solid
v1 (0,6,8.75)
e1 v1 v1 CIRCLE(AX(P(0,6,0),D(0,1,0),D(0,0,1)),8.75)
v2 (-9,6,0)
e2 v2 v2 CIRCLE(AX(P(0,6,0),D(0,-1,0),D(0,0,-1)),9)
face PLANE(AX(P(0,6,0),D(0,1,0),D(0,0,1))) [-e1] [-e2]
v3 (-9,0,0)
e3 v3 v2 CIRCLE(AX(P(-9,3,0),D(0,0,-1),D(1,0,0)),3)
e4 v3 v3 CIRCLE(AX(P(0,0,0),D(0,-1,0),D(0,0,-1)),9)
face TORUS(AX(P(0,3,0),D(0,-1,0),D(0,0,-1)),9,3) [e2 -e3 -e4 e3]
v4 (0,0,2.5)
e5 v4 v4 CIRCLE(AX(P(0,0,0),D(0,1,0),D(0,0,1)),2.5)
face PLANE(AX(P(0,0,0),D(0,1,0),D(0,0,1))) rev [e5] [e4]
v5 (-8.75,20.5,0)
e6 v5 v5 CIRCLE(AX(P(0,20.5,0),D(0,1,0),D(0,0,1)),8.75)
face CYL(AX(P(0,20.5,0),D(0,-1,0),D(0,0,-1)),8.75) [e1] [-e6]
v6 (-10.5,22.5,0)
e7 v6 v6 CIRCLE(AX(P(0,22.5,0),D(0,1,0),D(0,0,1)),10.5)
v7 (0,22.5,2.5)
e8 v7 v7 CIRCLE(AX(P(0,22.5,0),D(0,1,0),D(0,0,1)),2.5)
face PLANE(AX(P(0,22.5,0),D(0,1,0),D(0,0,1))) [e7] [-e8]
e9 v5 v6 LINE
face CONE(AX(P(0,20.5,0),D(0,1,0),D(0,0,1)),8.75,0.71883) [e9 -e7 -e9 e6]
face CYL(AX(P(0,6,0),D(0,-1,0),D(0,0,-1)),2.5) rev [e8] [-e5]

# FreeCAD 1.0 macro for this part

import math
import FreeCAD as App
import Part
import Sketcher
from FreeCAD import Vector
Q = App.Units.Quantity

doc = App.newDocument("Part")
body = doc.addObject("PartDesign::Body", "Body")

sketch1 = body.newObject("Sketcher::SketchObject", "Sketch")
sketch1.AttachmentSupport = (doc.getObject("XZ_Plane"), [""])
sketch1.MapMode = "FlatFace"
sketch1.addGeometry([
    Part.Circle(Vector(0, 0, 0), Vector(0, 0, 1), 12),
    Part.Circle(Vector(0, 0, 0), Vector(0, 0, 1), 2.5),
], False)
sketch1.addConstraint([
    Sketcher.Constraint("Coincident", 0, 3, -1, 1),
    Sketcher.Constraint("Coincident", 1, 3, -1, 1),
    Sketcher.Constraint("Diameter", 0, Q("24 mm")),
    Sketcher.Constraint("Diameter", 1, Q("5 mm")),
])
pad1 = body.newObject("PartDesign::Pad", "Pad")
pad1.Profile = sketch1
pad1.Length = 6
pad1.Reversed = True

sketch2 = body.newObject("Sketcher::SketchObject", "Sketch001")
sketch2.AttachmentSupport = (doc.getObject("XZ_Plane"), [""])
sketch2.MapMode = "FlatFace"
sketch2.AttachmentOffset = App.Placement(Vector(0, 0, -6), App.Rotation())
sketch2.addGeometry([
    Part.Circle(Vector(0, 0, 0), Vector(0, 0, 1), 8.75),
    Part.Circle(Vector(0, 0, 0), Vector(0, 0, 1), 2.5),
], False)
sketch2.addConstraint([
    Sketcher.Constraint("Coincident", 0, 3, -1, 1),
    Sketcher.Constraint("Coincident", 1, 3, -1, 1),
    Sketcher.Constraint("Diameter", 1, Q("5 mm")),
    Sketcher.Constraint("Diameter", 0, Q("17.5 mm")),
])
pad2 = body.newObject("PartDesign::Pad", "Pad001")
pad2.Profile = sketch2
pad2.Length = 14.5
pad2.Reversed = True

sketch3 = body.newObject("Sketcher::SketchObject", "Sketch002")
sketch3.AttachmentSupport = (doc.getObject("XZ_Plane"), [""])
sketch3.MapMode = "FlatFace"
sketch3.AttachmentOffset = App.Placement(Vector(0, 0, -20.5), App.Rotation())
sketch3.addGeometry([
    Part.Circle(Vector(0, 0, 0), Vector(0, 0, 1), 10.5),
    Part.Circle(Vector(0, 0, 0), Vector(0, 0, 1), 2.5),
], False)
sketch3.addConstraint([
    Sketcher.Constraint("Coincident", 0, 3, -1, 1),
    Sketcher.Constraint("Coincident", 1, 3, -1, 1),
    Sketcher.Constraint("Diameter", 0, Q("21 mm")),
    Sketcher.Constraint("Diameter", 1, Q("5 mm")),
])
pad3 = body.newObject("PartDesign::Pad", "Pad002")
pad3.Profile = sketch3
pad3.Length = 2
pad3.Reversed = True

sketch4 = body.newObject("Sketcher::SketchObject", "Sketch003")
sketch4.AttachmentSupport = (doc.getObject("XY_Plane"), [""])
sketch4.MapMode = "FlatFace"
sketch4.addGeometry([
    Part.LineSegment(Vector(-8.75, 20.5, 0), Vector(-10.5, 22.5, 0)),
    Part.LineSegment(Vector(-10.5, 22.5, 0), Vector(-10.5, 20.5, 0)),
    Part.LineSegment(Vector(-10.5, 20.5, 0), Vector(-8.75, 20.5, 0)),
], False)
sketch4.addConstraint([
    Sketcher.Constraint("Coincident", 0, 2, 1, 1),
    Sketcher.Constraint("Coincident", 1, 2, 2, 1),
    Sketcher.Constraint("Coincident", 2, 2, 0, 1),
    Sketcher.Constraint("Vertical", 1),
    Sketcher.Constraint("Horizontal", 2),
    Sketcher.Constraint("DistanceY", 1, 2, 1, 1, Q("2 mm")),
    Sketcher.Constraint("DistanceX", 2, 1, 2, 2, Q("1.75 mm")),
    Sketcher.Constraint("DistanceX", 0, 2, -1, 1, Q("10.5 mm")),
    Sketcher.Constraint("DistanceY", -1, 1, 0, 2, Q("22.5 mm")),
])

sketch5 = body.newObject("Sketcher::SketchObject", "Sketch004")
sketch5.AttachmentSupport = (doc.getObject("XZ_Plane"), [""])
sketch5.MapMode = "FlatFace"
sketch5.AttachmentOffset = App.Placement(Vector(0, 0, -20.5), App.Rotation())
sketch5.addGeometry(Part.Circle(Vector(0, 0, 0), Vector(0, 0, 1), 8.75), False)
sketch5.addConstraint([
    Sketcher.Constraint("Coincident", 0, 3, -1, 1),
    Sketcher.Constraint("Diameter", 0, Q("17.5 mm")),
])
doc.recompute()

subtractivepipe = body.newObject("PartDesign::SubtractivePipe", "SubtractivePipe")
subtractivepipe.Profile = sketch4
subtractivepipe.Spine = (sketch5, ["Edge1"])

sketch6 = body.newObject("Sketcher::SketchObject", "Sketch005")
sketch6.AttachmentSupport = (doc.getObject("XY_Plane"), [""])
sketch6.MapMode = "FlatFace"
sketch6.addGeometry([
    Part.LineSegment(Vector(-12, 6, 0), Vector(-12, 3, 0)),
    Part.ArcOfCircle(Part.Circle(Vector(-9, 3, 0), Vector(0, 0, 1), 3), math.radians(90), math.radians(180)),
    Part.LineSegment(Vector(-9, 6, 0), Vector(-12, 6, 0)),
], False)
sketch6.addConstraint([
    Sketcher.Constraint("Tangent", 0, 2, 1, 2),
    Sketcher.Constraint("Tangent", 1, 1, 2, 1),
    Sketcher.Constraint("Coincident", 2, 2, 0, 1),
    Sketcher.Constraint("Vertical", 0),
    Sketcher.Constraint("Horizontal", 2),
    Sketcher.Constraint("Radius", 1, Q("3 mm")),
    Sketcher.Constraint("DistanceX", 1, 3, -1, 1, Q("9 mm")),
    Sketcher.Constraint("DistanceY", -1, 1, 1, 3, Q("3 mm")),
])

sketch7 = body.newObject("Sketcher::SketchObject", "Sketch006")
sketch7.AttachmentSupport = (doc.getObject("XZ_Plane"), [""])
sketch7.MapMode = "FlatFace"
sketch7.AttachmentOffset = App.Placement(Vector(0, 0, -6), App.Rotation())
sketch7.addGeometry(Part.Circle(Vector(0, 0, 0), Vector(0, 0, 1), 12), False)
sketch7.addConstraint([
    Sketcher.Constraint("Coincident", 0, 3, -1, 1),
    Sketcher.Constraint("Diameter", 0, Q("24 mm")),
])
doc.recompute()

subtractivepipe2 = body.newObject("PartDesign::SubtractivePipe", "SubtractivePipe001")
subtractivepipe2.Profile = sketch6
subtractivepipe2.Spine = (sketch7, ["Edge1"])

sketch8 = body.newObject("Sketcher::SketchObject", "Sketch007")
sketch8.AttachmentSupport = (doc.getObject("XY_Plane"), [""])
sketch8.MapMode = "FlatFace"
sketch8.addGeometry([
    Part.LineSegment(Vector(-12, 0, 0), Vector(-9, 0, 0)),
    Part.ArcOfCircle(Part.Circle(Vector(-9, 3, 0), Vector(0, 0, 1), 3), math.radians(180), math.radians(270)),
    Part.LineSegment(Vector(-12, 3, 0), Vector(-12, 0, 0)),
], False)
sketch8.addConstraint([
    Sketcher.Constraint("Tangent", 0, 2, 1, 2),
    Sketcher.Constraint("Tangent", 1, 1, 2, 1),
    Sketcher.Constraint("Coincident", 2, 2, 0, 1),
    Sketcher.Constraint("Horizontal", 0),
    Sketcher.Constraint("Vertical", 2),
    Sketcher.Constraint("PointOnObject", 0, 2, -1),
    Sketcher.Constraint("Radius", 1, Q("3 mm")),
    Sketcher.Constraint("DistanceX", 1, 3, -1, 1, Q("9 mm")),
])

sketch9 = body.newObject("Sketcher::SketchObject", "Sketch008")
sketch9.AttachmentSupport = (doc.getObject("XZ_Plane"), [""])
sketch9.MapMode = "FlatFace"
sketch9.addGeometry(Part.Circle(Vector(0, 0, 0), Vector(0, 0, 1), 12), False)
sketch9.addConstraint([
    Sketcher.Constraint("Coincident", 0, 3, -1, 1),
    Sketcher.Constraint("Diameter", 0, Q("24 mm")),
])
doc.recompute()

subtractivepipe3 = body.newObject("PartDesign::SubtractivePipe", "SubtractivePipe002")
subtractivepipe3.Profile = sketch8
subtractivepipe3.Spine = (sketch9, ["Edge1"])

doc.recompute()
